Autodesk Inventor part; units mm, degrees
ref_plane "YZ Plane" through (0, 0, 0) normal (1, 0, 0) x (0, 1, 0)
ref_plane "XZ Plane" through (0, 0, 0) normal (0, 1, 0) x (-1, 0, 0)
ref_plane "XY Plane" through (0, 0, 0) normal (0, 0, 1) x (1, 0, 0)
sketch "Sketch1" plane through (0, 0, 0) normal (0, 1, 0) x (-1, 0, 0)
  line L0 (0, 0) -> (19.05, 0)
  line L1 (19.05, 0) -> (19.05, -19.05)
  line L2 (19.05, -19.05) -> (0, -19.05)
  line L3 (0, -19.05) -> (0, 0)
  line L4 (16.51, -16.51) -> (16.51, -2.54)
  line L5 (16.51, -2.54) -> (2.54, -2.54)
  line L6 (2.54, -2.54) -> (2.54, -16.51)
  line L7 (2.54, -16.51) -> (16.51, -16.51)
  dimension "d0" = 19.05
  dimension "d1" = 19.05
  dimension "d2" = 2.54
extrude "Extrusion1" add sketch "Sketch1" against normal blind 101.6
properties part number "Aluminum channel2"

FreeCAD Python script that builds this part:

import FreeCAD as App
import Part
import Sketcher
Q = App.Units.Quantity

doc = App.newDocument("Part")
params = doc.addObject("Spreadsheet::Sheet", "Params")
for row, (alias, value) in enumerate([
    ("sketch1_width", "0.75 in"),
    ("pad1_length", "4 in"),
], start=1):
    params.set(f"A{row}", alias)
    params.set(f"B{row}", "=" + value)
    params.setAlias(f"B{row}", alias)

body = doc.addObject("PartDesign::Body", "Body")

sketch1 = body.newObject("Sketcher::SketchObject", "Sketch")
sketch1.AttachmentSupport = (doc.getObject("XZ_Plane"), [""])
sketch1.MapMode = "FlatFace"
sketch1.addGeometry([
    Part.LineSegment(App.Vector(-19, 0, 0), App.Vector(0, 0, 0)),
    Part.LineSegment(App.Vector(0, 0, 0), App.Vector(0, -19, 0)),
    Part.LineSegment(App.Vector(0, -19, 0), App.Vector(-19, -19, 0)),
    Part.LineSegment(App.Vector(-19, -19, 0), App.Vector(-19, 0, 0)),
    Part.LineSegment(App.Vector(-17, -3, 0), App.Vector(-17, -17, 0)),
    Part.LineSegment(App.Vector(-17, -17, 0), App.Vector(-3, -17, 0)),
    Part.LineSegment(App.Vector(-3, -17, 0), App.Vector(-3, -3, 0)),
    Part.LineSegment(App.Vector(-3, -3, 0), App.Vector(-17, -3, 0)),
], False)
sketch1.addConstraint([
    Sketcher.Constraint("Coincident", 0, 2, 1, 1),
    Sketcher.Constraint("Coincident", 1, 2, 2, 1),
    Sketcher.Constraint("Coincident", 2, 2, 3, 1),
    Sketcher.Constraint("Coincident", 3, 2, 0, 1),
    Sketcher.Constraint("Coincident", 4, 2, 5, 1),
    Sketcher.Constraint("Coincident", 5, 2, 6, 1),
    Sketcher.Constraint("Coincident", 6, 2, 7, 1),
    Sketcher.Constraint("Coincident", 7, 2, 4, 1),
    Sketcher.Constraint("Horizontal", 0),
    Sketcher.Constraint("Vertical", 1),
    Sketcher.Constraint("Horizontal", 2),
    Sketcher.Constraint("Vertical", 3),
    Sketcher.Constraint("Vertical", 4),
    Sketcher.Constraint("Horizontal", 5),
    Sketcher.Constraint("Vertical", 6),
    Sketcher.Constraint("Horizontal", 7),
    Sketcher.Constraint("Coincident", 0, 2, -1, 1),
    Sketcher.Constraint("Equal", 2, 1),
    Sketcher.Constraint("Equal", 7, 4),
    Sketcher.Constraint("DistanceX", 0, 1, 0, 2, Q("0.75 in")),
    Sketcher.Constraint("DistanceX", 5, 2, -1, 1, Q("0.1 in")),
    Sketcher.Constraint("DistanceY", 6, 2, -1, 1, Q("0.1 in")),
    Sketcher.Constraint("DistanceX", 2, 2, 4, 2, Q("0.1 in")),
])
sketch1.setExpression("Constraints[19]", "Params.sketch1_width")
pad1 = body.newObject("PartDesign::Pad", "Pad")
pad1.Profile = sketch1
pad1.setExpression("Length", "Params.pad1_length")

doc.recompute()
